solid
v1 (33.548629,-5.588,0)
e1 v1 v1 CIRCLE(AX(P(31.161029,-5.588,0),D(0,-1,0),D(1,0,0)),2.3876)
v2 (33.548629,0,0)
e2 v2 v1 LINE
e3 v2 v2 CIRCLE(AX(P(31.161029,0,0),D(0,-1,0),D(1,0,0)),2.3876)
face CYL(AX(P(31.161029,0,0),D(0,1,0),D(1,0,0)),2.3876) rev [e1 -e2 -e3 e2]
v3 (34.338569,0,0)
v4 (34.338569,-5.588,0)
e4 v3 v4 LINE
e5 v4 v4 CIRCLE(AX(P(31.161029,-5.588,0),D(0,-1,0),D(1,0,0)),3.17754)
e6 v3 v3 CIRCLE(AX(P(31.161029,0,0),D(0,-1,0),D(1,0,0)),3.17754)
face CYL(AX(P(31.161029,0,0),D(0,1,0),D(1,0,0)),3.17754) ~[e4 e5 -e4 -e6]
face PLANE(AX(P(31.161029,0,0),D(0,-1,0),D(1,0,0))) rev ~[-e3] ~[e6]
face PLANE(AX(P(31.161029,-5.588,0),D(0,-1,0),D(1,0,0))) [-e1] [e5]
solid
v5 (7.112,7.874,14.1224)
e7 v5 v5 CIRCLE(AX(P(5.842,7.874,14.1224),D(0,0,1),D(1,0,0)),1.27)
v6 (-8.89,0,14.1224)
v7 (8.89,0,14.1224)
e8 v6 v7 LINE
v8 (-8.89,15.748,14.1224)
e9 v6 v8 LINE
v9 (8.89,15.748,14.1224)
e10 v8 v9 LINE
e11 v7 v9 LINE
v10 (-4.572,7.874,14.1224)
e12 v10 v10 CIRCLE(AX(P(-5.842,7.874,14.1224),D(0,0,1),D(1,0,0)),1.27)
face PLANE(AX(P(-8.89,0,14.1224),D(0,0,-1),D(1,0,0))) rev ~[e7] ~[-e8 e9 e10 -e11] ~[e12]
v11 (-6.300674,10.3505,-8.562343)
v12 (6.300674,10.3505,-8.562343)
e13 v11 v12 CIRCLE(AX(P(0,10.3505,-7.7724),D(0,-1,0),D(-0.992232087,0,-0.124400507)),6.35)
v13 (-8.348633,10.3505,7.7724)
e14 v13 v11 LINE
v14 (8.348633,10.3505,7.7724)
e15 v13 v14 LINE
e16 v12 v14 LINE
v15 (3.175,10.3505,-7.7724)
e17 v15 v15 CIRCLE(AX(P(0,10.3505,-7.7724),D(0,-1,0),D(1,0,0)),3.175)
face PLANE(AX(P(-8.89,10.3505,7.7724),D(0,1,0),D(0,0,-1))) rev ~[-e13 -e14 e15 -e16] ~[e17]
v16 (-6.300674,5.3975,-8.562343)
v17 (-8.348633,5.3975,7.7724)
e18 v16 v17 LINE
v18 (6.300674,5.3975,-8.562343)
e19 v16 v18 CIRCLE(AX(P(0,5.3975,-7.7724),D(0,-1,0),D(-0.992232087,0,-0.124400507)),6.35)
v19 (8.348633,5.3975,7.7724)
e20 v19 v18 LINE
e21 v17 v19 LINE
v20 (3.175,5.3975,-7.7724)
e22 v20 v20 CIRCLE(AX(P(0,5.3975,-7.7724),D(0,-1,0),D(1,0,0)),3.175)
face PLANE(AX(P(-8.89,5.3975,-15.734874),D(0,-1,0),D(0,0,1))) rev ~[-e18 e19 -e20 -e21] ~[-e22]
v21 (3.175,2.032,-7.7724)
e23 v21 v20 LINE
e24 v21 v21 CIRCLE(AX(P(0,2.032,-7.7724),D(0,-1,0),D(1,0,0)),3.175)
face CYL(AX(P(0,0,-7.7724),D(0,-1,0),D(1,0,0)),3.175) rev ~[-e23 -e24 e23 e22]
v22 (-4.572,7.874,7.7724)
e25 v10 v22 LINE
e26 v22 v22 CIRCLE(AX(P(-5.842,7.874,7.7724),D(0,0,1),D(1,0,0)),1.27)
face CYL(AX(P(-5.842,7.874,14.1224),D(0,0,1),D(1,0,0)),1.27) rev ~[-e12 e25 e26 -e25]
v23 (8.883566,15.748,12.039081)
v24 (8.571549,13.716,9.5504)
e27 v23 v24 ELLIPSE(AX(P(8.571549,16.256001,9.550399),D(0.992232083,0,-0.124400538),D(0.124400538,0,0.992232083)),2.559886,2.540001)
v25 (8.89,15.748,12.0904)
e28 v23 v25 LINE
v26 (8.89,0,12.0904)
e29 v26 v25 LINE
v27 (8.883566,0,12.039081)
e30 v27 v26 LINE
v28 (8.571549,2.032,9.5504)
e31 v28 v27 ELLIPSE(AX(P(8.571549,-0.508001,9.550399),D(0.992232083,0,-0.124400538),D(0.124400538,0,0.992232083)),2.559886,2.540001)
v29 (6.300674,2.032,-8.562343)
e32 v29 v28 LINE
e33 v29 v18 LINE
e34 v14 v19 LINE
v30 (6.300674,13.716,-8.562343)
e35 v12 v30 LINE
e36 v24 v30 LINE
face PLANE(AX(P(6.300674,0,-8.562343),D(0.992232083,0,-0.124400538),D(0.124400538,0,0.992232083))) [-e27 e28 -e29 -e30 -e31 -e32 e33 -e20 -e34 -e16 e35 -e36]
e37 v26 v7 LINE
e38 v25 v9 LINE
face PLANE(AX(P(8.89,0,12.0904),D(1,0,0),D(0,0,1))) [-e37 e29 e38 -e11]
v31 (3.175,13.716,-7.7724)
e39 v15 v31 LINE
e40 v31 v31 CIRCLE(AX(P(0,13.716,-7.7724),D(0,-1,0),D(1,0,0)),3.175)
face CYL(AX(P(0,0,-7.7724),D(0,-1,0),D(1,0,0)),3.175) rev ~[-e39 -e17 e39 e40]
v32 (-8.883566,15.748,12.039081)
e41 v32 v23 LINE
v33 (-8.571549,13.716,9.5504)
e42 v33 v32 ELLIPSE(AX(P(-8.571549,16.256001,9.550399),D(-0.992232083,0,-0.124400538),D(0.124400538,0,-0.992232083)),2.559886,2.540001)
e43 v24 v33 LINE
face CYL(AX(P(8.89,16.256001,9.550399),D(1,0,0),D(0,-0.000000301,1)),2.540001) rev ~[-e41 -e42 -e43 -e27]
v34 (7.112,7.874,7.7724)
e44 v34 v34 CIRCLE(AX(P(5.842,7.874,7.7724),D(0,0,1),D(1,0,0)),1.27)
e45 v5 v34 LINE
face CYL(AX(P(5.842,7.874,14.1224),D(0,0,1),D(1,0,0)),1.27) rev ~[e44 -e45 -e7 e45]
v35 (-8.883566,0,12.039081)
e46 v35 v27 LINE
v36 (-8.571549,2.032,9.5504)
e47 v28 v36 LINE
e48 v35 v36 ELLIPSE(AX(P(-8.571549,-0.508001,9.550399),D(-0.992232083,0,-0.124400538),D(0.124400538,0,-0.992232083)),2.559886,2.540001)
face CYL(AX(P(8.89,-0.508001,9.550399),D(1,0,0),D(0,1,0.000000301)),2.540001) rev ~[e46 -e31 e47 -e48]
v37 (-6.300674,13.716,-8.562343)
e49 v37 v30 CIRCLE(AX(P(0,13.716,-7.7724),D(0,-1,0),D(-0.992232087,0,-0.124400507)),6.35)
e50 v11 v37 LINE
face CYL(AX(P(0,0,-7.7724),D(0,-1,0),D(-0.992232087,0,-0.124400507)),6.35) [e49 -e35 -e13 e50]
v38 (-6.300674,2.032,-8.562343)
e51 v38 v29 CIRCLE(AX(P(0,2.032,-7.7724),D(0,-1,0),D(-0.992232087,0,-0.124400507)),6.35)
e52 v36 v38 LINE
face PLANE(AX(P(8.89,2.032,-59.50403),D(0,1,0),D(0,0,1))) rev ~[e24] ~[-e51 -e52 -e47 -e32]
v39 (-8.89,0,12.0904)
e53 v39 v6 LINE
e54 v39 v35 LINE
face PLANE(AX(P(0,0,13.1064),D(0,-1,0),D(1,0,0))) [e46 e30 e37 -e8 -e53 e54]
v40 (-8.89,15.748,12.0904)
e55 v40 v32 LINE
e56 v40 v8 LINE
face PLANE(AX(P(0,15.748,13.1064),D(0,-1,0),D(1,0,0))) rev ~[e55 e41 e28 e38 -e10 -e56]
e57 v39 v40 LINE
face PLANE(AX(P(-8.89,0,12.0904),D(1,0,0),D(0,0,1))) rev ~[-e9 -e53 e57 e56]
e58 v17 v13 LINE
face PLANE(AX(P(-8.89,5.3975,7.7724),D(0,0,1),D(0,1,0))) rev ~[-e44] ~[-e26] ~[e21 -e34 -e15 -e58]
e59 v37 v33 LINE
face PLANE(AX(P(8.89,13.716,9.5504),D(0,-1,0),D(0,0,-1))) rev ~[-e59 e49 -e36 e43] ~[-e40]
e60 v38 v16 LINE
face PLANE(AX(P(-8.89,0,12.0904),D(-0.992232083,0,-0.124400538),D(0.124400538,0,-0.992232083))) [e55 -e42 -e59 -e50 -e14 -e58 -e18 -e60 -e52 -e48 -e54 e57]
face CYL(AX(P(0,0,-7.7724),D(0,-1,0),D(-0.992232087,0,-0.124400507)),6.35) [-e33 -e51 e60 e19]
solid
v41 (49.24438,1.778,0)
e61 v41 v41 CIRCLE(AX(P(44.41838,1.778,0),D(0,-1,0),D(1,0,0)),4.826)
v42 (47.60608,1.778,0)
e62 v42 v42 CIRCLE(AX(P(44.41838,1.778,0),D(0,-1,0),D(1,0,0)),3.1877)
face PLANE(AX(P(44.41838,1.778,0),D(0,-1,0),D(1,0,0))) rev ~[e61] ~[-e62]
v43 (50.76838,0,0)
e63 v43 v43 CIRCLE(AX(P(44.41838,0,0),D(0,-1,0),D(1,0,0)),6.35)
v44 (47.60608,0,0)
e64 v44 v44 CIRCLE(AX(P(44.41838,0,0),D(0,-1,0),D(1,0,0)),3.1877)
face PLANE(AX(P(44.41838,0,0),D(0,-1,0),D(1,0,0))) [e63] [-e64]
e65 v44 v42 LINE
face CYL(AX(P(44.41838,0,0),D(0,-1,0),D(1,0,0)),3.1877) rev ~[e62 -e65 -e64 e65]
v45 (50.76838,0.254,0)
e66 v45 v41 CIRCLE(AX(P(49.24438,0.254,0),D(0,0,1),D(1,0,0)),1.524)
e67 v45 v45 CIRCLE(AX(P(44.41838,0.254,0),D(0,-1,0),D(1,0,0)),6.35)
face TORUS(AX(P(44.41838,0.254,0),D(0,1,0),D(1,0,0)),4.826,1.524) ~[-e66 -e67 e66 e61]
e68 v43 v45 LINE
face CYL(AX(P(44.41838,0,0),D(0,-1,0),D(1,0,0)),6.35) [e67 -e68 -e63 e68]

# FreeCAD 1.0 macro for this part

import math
import FreeCAD as App
import Part
import Sketcher

V = App.Vector
Q = App.Units.Quantity


def edges_at(feature, points):
    """Names of the edges that pass closest to the given points."""
    edges = feature.Shape.Edges
    near = lambda p: min(range(len(edges)), key=lambda i: edges[i].distToShape(Part.Vertex(*p))[0])
    return sorted({f"Edge{near(p) + 1}" for p in points})


def add_polygon(sketch, points):
    """Adds a closed chain of lines whose ends are joined by coincident constraints."""
    first, n = sketch.GeometryCount, len(points)
    for a, b in zip(points, points[1:] + points[:1]):
        sketch.addGeometry(Part.LineSegment(App.Vector(*a, 0), App.Vector(*b, 0)), False)
    for i in range(n):
        sketch.addConstraint(Sketcher.Constraint("Coincident", first + i, 2, first + (i + 1) % n, 1))

doc = App.newDocument("Part")
body = doc.addObject("PartDesign::Body", "Body")

# Sketch on XZ plane
sketch1 = doc.addObject("Sketcher::SketchObject", "Sketch")
body.addObject(sketch1)
sketch1.AttachmentSupport = (doc.XZ_Plane, [""])
sketch1.MapMode = "FlatFace"
sketch1.addGeometry([
    Part.LineSegment(V(-8.9, 14.1, 0), V(-8.9, 12.1, 0)),  # 0
    Part.LineSegment(V(-8.9, 12.1, 0), V(-6.3, -8.6, 0)),  # 1
    Part.ArcOfCircle(Part.Circle(V(0, -7.8, 0), V(0, 0, 1), 6.4), math.radians(-173), math.radians(-7)),  # 2
    Part.LineSegment(V(6.3, -8.6, 0), V(8.9, 12.1, 0)),  # 3
    Part.LineSegment(V(8.9, 12.1, 0), V(8.9, 14.1, 0)),  # 4
    Part.LineSegment(V(8.9, 14.1, 0), V(-8.9, 14.1, 0)),  # 5
    Part.Circle(V(0, -7.8, 0), V(0, 0, 1), 3.2),  # 6
], False)
sketch1.addConstraint([
    Sketcher.Constraint("Coincident", 0, 2, 1, 1),
    Sketcher.Constraint("Tangent", 1, 2, 2, 1),
    Sketcher.Constraint("Tangent", 2, 2, 3, 1),
    Sketcher.Constraint("Coincident", 3, 2, 4, 1),
    Sketcher.Constraint("Coincident", 4, 2, 5, 1),
    Sketcher.Constraint("Coincident", 5, 2, 0, 1),
    Sketcher.Constraint("Vertical", 0),
    Sketcher.Constraint("Vertical", 4),
    Sketcher.Constraint("Horizontal", 5),
    Sketcher.Constraint("Coincident", 6, 3, 2, 3),
    Sketcher.Constraint("Symmetric", 1, 2, 2, 2, -2),
    Sketcher.Constraint("Horizontal", 0, 2, 3, 2),
    Sketcher.Constraint("Diameter", 6, Q("0.25 in")),
    Sketcher.Constraint("Radius", 2, Q("0.25 in")),
    Sketcher.Constraint("DistanceX", 5, 2, 5, 1, Q("0.7 in")),
    Sketcher.Constraint("DistanceY", 0, 2, 0, 1, Q("0.08 in")),
    Sketcher.Constraint("DistanceY", 2, 3, -1, 1, Q("0.306 in")),
    Sketcher.Constraint("DistanceY", -1, 1, 0, 2, Q("0.476 in")),
])
pad1 = doc.addObject("PartDesign::Pad", "Pad")
body.addObject(pad1)
pad1.Profile = sketch1
pad1.Length = Q("0.62 in")
pad1.Reversed = True

# Sketch on YZ plane
sketch2 = doc.addObject("Sketcher::SketchObject", "Sketch001")
body.addObject(sketch2)
sketch2.AttachmentSupport = (doc.YZ_Plane, [""])
sketch2.MapMode = "FlatFace"
sketch2.AttachmentOffset = App.Placement(V(0, 0, -0.35 * 25.4), App.Rotation())
add_polygon(sketch2, [(5.4, 7.8), (10.4, 7.8), (10.4, -15.7), (5.4, -15.7)])  # lines 0-3
sketch2.addConstraint([
    Sketcher.Constraint("Horizontal", 0),
    Sketcher.Constraint("Vertical", 1),
    Sketcher.Constraint("Horizontal", 2),
    Sketcher.Constraint("Vertical", 3),
    Sketcher.Constraint("DistanceX", 0, 1, 0, 2, Q("0.195 in")),
    Sketcher.Constraint("DistanceY", -1, 1, 0, 2, Q("0.306 in")),
    Sketcher.Constraint("DistanceX", -1, 1, 0, 2, Q("0.4075 in")),
    Sketcher.Constraint("DistanceY", 1, 2, 1, 1, Q("23.507274 mm")),
])
pocket1 = doc.addObject("PartDesign::Pocket", "Pocket")
body.addObject(pocket1)
pocket1.Profile = sketch2
pocket1.Type = "ThroughAll"
pocket1.Reversed = True

# Sketch on YZ plane
sketch3 = doc.addObject("Sketcher::SketchObject", "Sketch002")
body.addObject(sketch3)
sketch3.AttachmentSupport = (doc.YZ_Plane, [""])
sketch3.MapMode = "FlatFace"
sketch3.AttachmentOffset = App.Placement(V(0, 0, 0.35 * 25.4), App.Rotation())
sketch3.addGeometry([
    Part.ArcOfCircle(Part.Circle(V(16.3, 9.6, 0), V(0, 0, 1), 2.5), math.radians(90), math.radians(180)),  # 0
    Part.LineSegment(V(13.7, 9.6, 0), V(13.7, -23.9, 0)),  # 1
    Part.LineSegment(V(13.7, -23.9, 0), V(23, -23.9, 0)),  # 2
    Part.LineSegment(V(23, -23.9, 0), V(23, 12.1, 0)),  # 3
    Part.LineSegment(V(23, 12.1, 0), V(16.3, 12.1, 0)),  # 4
    Part.LineSegment(V(-2.6, -59.5, 0), V(2, -59.5, 0)),  # 5
    Part.LineSegment(V(2, -59.5, 0), V(2, 9.6, 0)),  # 6
    Part.ArcOfCircle(Part.Circle(V(-0.5, 9.6, 0), V(0, 0, 1), 2.5), math.radians(0), math.radians(90)),  # 7
    Part.LineSegment(V(-0.5, 12.1, 0), V(-2.6, 12.1, 0)),  # 8
    Part.LineSegment(V(-2.6, 12.1, 0), V(-2.6, -59.5, 0)),  # 9
], False)
sketch3.addConstraint([
    Sketcher.Constraint("Tangent", 0, 2, 1, 1),
    Sketcher.Constraint("Coincident", 1, 2, 2, 1),
    Sketcher.Constraint("Coincident", 2, 2, 3, 1),
    Sketcher.Constraint("Coincident", 3, 2, 4, 1),
    Sketcher.Constraint("Tangent", 4, 2, 0, 1),
    Sketcher.Constraint("Coincident", 5, 2, 6, 1),
    Sketcher.Constraint("Tangent", 6, 2, 7, 1),
    Sketcher.Constraint("Tangent", 7, 2, 8, 1),
    Sketcher.Constraint("Coincident", 8, 2, 9, 1),
    Sketcher.Constraint("Coincident", 9, 2, 5, 1),
    Sketcher.Constraint("Vertical", 1),
    Sketcher.Constraint("Horizontal", 2),
    Sketcher.Constraint("Vertical", 3),
    Sketcher.Constraint("Horizontal", 4),
    Sketcher.Constraint("Horizontal", 5),
    Sketcher.Constraint("Vertical", 6),
    Sketcher.Constraint("Horizontal", 8),
    Sketcher.Constraint("Vertical", 9),
    Sketcher.Constraint("Equal", 0, 7),
    Sketcher.Constraint("Horizontal", 0, 3, 7, 3),
    Sketcher.Constraint("Radius", 0, Q("0.1 in")),
    Sketcher.Constraint("DistanceX", -1, 1, 0, 3, Q("0.64 in")),
    Sketcher.Constraint("DistanceX", 7, 3, -1, 1, Q("0.02 in")),
    Sketcher.Constraint("DistanceY", -1, 1, 0, 3, Q("0.376 in")),
    Sketcher.Constraint("DistanceX", 2, 1, 2, 2, Q("9.238069 mm")),
    Sketcher.Constraint("DistanceY", 6, 1, 6, 2, Q("69.05443 mm")),
    Sketcher.Constraint("DistanceX", 5, 1, 5, 2, Q("4.633736 mm")),
    Sketcher.Constraint("DistanceY", 1, 2, 1, 1, Q("33.496376 mm")),
])
pocket2 = doc.addObject("PartDesign::Pocket", "Pocket001")
body.addObject(pocket2)
pocket2.Profile = sketch3
pocket2.Type = "ThroughAll"

# Sketch on XY plane
sketch4 = doc.addObject("Sketcher::SketchObject", "Sketch003")
body.addObject(sketch4)
sketch4.AttachmentSupport = (doc.XY_Plane, [""])
sketch4.MapMode = "FlatFace"
sketch4.AttachmentOffset = App.Placement(V(0, 0, 0.556 * 25.4), App.Rotation())
sketch4.addGeometry([
    Part.Circle(V(5.8, 7.9, 0), V(0, 0, 1), 1.3),
    Part.Circle(V(-5.8, 7.9, 0), V(0, 0, 1), 1.3),
], False)
sketch4.addConstraint([
    Sketcher.Constraint("Equal", 0, 1),
    Sketcher.Constraint("Symmetric", 0, 3, 1, 3, -2),
    Sketcher.Constraint("Diameter", 0, Q("0.1 in")),
    Sketcher.Constraint("DistanceX", -1, 1, 0, 3, Q("0.23 in")),
    Sketcher.Constraint("DistanceY", -1, 1, 0, 3, Q("0.31 in")),
])
pocket3 = doc.addObject("PartDesign::Pocket", "Pocket002")
body.addObject(pocket3)
pocket3.Profile = sketch4
pocket3.Length = Q("1 in")
body2 = doc.addObject("PartDesign::Body", "Body001")

# Sketch on XZ plane
sketch5 = doc.addObject("Sketcher::SketchObject", "Sketch004")
body2.addObject(sketch5)
sketch5.AttachmentSupport = (doc.getObject("XZ_Plane001"), [""])
sketch5.MapMode = "FlatFace"
sketch5.addGeometry([
    Part.Circle(V(31.2, 0, 0), V(0, 0, 1), 3.2),
    Part.Circle(V(31.2, 0, 0), V(0, 0, 1), 2.4),
], False)
sketch5.addConstraint([
    Sketcher.Constraint("Coincident", 1, 3, 0, 3),
    Sketcher.Constraint("PointOnObject", 0, 3, -1),
    Sketcher.Constraint("Diameter", 1, Q("0.188 in")),
    Sketcher.Constraint("Diameter", 0, Q("0.2502 in")),
    Sketcher.Constraint("DistanceX", -1, 1, 0, 3, Q("31.161029 mm")),
])
pad2 = doc.addObject("PartDesign::Pad", "Pad001")
body2.addObject(pad2)
pad2.Profile = sketch5
pad2.Length = Q("0.22 in")
body3 = doc.addObject("PartDesign::Body", "Body002")

# Sketch on XZ plane
sketch6 = doc.addObject("Sketcher::SketchObject", "Sketch005")
body3.addObject(sketch6)
sketch6.AttachmentSupport = (doc.getObject("XZ_Plane002"), [""])
sketch6.MapMode = "FlatFace"
sketch6.addGeometry([
    Part.Circle(V(44.4, 0, 0), V(0, 0, 1), 6.3),
    Part.Circle(V(44.4, 0, 0), V(0, 0, 1), 3.2),
], False)
sketch6.addConstraint([
    Sketcher.Constraint("Coincident", 1, 3, 0, 3),
    Sketcher.Constraint("PointOnObject", 0, 3, -1),
    Sketcher.Constraint("Diameter", 0, Q("0.5 in")),
    Sketcher.Constraint("Diameter", 1, Q("0.251 in")),
    Sketcher.Constraint("DistanceX", -1, 1, 0, 3, Q("44.41838 mm")),
])
pad3 = doc.addObject("PartDesign::Pad", "Pad002")
body3.addObject(pad3)
pad3.Profile = sketch6
pad3.Length = Q("0.07 in")
pad3.Reversed = True
doc.recompute()

fillet = doc.addObject("PartDesign::Fillet", "Fillet")
body3.addObject(fillet)
fillet.Base = (pad3, edges_at(pad3, [(38.068, 1.778, 0)]))
fillet.Radius = Q("0.06 in")

doc.recompute()
